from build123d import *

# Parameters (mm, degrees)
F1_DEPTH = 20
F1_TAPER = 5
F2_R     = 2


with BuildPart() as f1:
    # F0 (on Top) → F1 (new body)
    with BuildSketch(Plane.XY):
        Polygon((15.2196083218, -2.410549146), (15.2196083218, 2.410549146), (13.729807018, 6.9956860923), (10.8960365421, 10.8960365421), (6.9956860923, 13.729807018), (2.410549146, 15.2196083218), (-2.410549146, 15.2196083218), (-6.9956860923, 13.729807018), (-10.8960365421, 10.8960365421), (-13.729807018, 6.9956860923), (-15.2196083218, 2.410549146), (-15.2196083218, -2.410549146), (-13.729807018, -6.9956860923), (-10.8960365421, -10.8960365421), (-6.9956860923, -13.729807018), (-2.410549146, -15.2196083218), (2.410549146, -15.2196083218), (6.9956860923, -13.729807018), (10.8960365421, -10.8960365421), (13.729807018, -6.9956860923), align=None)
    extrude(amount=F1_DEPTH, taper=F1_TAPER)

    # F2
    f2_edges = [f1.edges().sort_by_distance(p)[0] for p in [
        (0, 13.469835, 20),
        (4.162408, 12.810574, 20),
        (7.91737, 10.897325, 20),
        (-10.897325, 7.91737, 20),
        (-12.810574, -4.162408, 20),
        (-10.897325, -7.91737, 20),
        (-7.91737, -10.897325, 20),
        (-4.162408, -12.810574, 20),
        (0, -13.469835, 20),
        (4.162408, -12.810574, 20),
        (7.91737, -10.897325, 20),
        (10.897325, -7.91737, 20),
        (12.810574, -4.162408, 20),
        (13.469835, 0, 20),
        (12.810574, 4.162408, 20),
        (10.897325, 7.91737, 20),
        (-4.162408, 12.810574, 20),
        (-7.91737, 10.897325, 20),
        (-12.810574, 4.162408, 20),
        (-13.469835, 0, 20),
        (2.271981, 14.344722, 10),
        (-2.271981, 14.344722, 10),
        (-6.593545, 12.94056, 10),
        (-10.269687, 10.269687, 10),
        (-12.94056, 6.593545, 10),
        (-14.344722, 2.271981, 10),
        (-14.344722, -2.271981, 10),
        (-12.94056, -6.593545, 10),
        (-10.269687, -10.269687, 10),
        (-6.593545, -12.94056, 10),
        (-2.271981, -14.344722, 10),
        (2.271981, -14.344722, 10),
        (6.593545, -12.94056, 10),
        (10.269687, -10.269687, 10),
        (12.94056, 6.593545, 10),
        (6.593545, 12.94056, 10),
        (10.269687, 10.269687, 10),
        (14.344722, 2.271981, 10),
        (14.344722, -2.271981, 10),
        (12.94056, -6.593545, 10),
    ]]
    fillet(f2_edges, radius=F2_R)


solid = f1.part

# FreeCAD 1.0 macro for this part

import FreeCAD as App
import Part
import Sketcher
from FreeCAD import Vector
Q = App.Units.Quantity


def edges_at(feature, points):
    """Names of the edges that pass closest to the given points."""
    edges = feature.Shape.Edges
    near = lambda p: min(range(len(edges)), key=lambda i: edges[i].distToShape(Part.Vertex(*p))[0])
    return sorted({f"Edge{near(p) + 1}" for p in points})


def add_polygon(sketch, points):
    """Adds a closed chain of lines whose ends are joined by coincident constraints."""
    first, n = sketch.GeometryCount, len(points)
    for a, b in zip(points, points[1:] + points[:1]):
        sketch.addGeometry(Part.LineSegment(App.Vector(*a, 0), App.Vector(*b, 0)), False)
    for i in range(n):
        sketch.addConstraint(Sketcher.Constraint("Coincident", first + i, 2, first + (i + 1) % n, 1))

doc = App.newDocument("Part")
params = doc.addObject("Spreadsheet::Sheet", "Params")
for row, (alias, value) in enumerate([
    ("pad1_length", "20 mm"),
    ("pad1_taper", "-5 deg"),
    ("fillet_radius", "2 mm"),
], start=1):
    params.set(f"A{row}", alias)
    params.set(f"B{row}", "=" + value)
    params.setAlias(f"B{row}", alias)

body = doc.addObject("PartDesign::Body", "Body")

# Sketch on XY plane
sketch1 = body.newObject("Sketcher::SketchObject", "Sketch")
sketch1.AttachmentSupport = (doc.getObject("XY_Plane"), [""])
sketch1.MapMode = "FlatFace"
add_polygon(sketch1, [(15.219608, -2.410549), (15.219608, 2.410549), (13.729807, 6.995686), (10.896037, 10.896037), (6.995686, 13.729807), (2.410549, 15.219608), (-2.410549, 15.219608), (-6.995686, 13.729807), (-10.896037, 10.896037), (-13.729807, 6.995686), (-15.219608, 2.410549), (-15.219608, -2.410549), (-13.729807, -6.995686), (-10.896037, -10.896037), (-6.995686, -13.729807), (-2.410549, -15.219608), (2.410549, -15.219608), (6.995686, -13.729807), (10.896037, -10.896037), (13.729807, -6.995686)])  # lines 0-19
sketch1.addConstraint([
    Sketcher.Constraint("Vertical", 0),
    Sketcher.Constraint("Horizontal", 5),
    Sketcher.Constraint("Vertical", 10),
    Sketcher.Constraint("Horizontal", 15),
    Sketcher.Constraint("Symmetric", 0, 2, 10, 2, -1, 1),
    Sketcher.Constraint("Symmetric", 1, 2, 11, 2, -1, 1),
    Sketcher.Constraint("Symmetric", 2, 2, 12, 2, -1, 1),
    Sketcher.Constraint("Symmetric", 3, 2, 13, 2, -1, 1),
    Sketcher.Constraint("Symmetric", 4, 2, 14, 2, -1, 1),
    Sketcher.Constraint("Symmetric", 6, 2, 16, 2, -1, 1),
    Sketcher.Constraint("Symmetric", 7, 2, 17, 2, -1, 1),
    Sketcher.Constraint("Symmetric", 8, 2, 18, 2, -1, 1),
    Sketcher.Constraint("Symmetric", 3, 2, 6, 2, -2),
    Sketcher.Constraint("Symmetric", 2, 2, 7, 2, -2),
    Sketcher.Constraint("Symmetric", 1, 2, 8, 2, -2),
    Sketcher.Constraint("Perpendicular", 1, 6),
    Sketcher.Constraint("Perpendicular", 2, 7),
    Sketcher.Constraint("Perpendicular", 4, 9),
    Sketcher.Constraint("Perpendicular", 11, 16),
    Sketcher.Constraint("Perpendicular", 14, 19),
    Sketcher.Constraint("Horizontal", 0, 2, 9, 2),
    Sketcher.Constraint("Equal", 15, 0),
    Sketcher.Constraint("Equal", 1, 2),
    Sketcher.Constraint("Equal", 2, 3),
    Sketcher.Constraint("Equal", 3, 4),
    Sketcher.Constraint("Angle", 1, Q("108 deg")),
    Sketcher.Constraint("Angle", 2, Q("126 deg")),
    Sketcher.Constraint("DistanceX", 5, 2, 5, 1, Q("4.821098 mm")),
    Sketcher.Constraint("Distance", 1, Q("4.821098 mm")),
])
pad1 = body.newObject("PartDesign::Pad", "Pad")
pad1.Profile = sketch1
pad1.setExpression("Length", "Params.pad1_length")
pad1.setExpression("TaperAngle", "Params.pad1_taper")
doc.recompute()

fillet = body.newObject("PartDesign::Fillet", "Fillet")
fillet.Base = (pad1, edges_at(pad1, [
    (0, 13.47, 20),
    (4.162, 12.811, 20),
    (7.917, 10.897, 20),
    (-10.897, 7.917, 20),
    (-12.811, -4.162, 20),
    (-10.897, -7.917, 20),
    (-7.917, -10.897, 20),
    (-4.162, -12.811, 20),
    (0, -13.47, 20),
    (4.162, -12.811, 20),
    (7.917, -10.897, 20),
    (10.897, -7.917, 20),
    (12.811, -4.162, 20),
    (13.47, 0, 20),
    (12.811, 4.162, 20),
    (10.897, 7.917, 20),
    (-4.162, 12.811, 20),
    (-7.917, 10.897, 20),
    (-12.811, 4.162, 20),
    (-13.47, 0, 20),
    (2.272, 14.345, 10),
    (-2.272, 14.345, 10),
    (-6.594, 12.941, 10),
    (-10.27, 10.27, 10),
    (-12.941, 6.594, 10),
    (-14.345, 2.272, 10),
    (-14.345, -2.272, 10),
    (-12.941, -6.594, 10),
    (-10.27, -10.27, 10),
    (-6.594, -12.941, 10),
    (-2.272, -14.345, 10),
    (2.272, -14.345, 10),
    (6.594, -12.941, 10),
    (10.27, -10.27, 10),
    (12.941, 6.594, 10),
    (6.594, 12.941, 10),
    (10.27, 10.27, 10),
    (14.345, 2.272, 10),
    (14.345, -2.272, 10),
    (12.941, -6.594, 10),
]))
fillet.setExpression("Radius", "Params.fillet_radius")

doc.recompute()
